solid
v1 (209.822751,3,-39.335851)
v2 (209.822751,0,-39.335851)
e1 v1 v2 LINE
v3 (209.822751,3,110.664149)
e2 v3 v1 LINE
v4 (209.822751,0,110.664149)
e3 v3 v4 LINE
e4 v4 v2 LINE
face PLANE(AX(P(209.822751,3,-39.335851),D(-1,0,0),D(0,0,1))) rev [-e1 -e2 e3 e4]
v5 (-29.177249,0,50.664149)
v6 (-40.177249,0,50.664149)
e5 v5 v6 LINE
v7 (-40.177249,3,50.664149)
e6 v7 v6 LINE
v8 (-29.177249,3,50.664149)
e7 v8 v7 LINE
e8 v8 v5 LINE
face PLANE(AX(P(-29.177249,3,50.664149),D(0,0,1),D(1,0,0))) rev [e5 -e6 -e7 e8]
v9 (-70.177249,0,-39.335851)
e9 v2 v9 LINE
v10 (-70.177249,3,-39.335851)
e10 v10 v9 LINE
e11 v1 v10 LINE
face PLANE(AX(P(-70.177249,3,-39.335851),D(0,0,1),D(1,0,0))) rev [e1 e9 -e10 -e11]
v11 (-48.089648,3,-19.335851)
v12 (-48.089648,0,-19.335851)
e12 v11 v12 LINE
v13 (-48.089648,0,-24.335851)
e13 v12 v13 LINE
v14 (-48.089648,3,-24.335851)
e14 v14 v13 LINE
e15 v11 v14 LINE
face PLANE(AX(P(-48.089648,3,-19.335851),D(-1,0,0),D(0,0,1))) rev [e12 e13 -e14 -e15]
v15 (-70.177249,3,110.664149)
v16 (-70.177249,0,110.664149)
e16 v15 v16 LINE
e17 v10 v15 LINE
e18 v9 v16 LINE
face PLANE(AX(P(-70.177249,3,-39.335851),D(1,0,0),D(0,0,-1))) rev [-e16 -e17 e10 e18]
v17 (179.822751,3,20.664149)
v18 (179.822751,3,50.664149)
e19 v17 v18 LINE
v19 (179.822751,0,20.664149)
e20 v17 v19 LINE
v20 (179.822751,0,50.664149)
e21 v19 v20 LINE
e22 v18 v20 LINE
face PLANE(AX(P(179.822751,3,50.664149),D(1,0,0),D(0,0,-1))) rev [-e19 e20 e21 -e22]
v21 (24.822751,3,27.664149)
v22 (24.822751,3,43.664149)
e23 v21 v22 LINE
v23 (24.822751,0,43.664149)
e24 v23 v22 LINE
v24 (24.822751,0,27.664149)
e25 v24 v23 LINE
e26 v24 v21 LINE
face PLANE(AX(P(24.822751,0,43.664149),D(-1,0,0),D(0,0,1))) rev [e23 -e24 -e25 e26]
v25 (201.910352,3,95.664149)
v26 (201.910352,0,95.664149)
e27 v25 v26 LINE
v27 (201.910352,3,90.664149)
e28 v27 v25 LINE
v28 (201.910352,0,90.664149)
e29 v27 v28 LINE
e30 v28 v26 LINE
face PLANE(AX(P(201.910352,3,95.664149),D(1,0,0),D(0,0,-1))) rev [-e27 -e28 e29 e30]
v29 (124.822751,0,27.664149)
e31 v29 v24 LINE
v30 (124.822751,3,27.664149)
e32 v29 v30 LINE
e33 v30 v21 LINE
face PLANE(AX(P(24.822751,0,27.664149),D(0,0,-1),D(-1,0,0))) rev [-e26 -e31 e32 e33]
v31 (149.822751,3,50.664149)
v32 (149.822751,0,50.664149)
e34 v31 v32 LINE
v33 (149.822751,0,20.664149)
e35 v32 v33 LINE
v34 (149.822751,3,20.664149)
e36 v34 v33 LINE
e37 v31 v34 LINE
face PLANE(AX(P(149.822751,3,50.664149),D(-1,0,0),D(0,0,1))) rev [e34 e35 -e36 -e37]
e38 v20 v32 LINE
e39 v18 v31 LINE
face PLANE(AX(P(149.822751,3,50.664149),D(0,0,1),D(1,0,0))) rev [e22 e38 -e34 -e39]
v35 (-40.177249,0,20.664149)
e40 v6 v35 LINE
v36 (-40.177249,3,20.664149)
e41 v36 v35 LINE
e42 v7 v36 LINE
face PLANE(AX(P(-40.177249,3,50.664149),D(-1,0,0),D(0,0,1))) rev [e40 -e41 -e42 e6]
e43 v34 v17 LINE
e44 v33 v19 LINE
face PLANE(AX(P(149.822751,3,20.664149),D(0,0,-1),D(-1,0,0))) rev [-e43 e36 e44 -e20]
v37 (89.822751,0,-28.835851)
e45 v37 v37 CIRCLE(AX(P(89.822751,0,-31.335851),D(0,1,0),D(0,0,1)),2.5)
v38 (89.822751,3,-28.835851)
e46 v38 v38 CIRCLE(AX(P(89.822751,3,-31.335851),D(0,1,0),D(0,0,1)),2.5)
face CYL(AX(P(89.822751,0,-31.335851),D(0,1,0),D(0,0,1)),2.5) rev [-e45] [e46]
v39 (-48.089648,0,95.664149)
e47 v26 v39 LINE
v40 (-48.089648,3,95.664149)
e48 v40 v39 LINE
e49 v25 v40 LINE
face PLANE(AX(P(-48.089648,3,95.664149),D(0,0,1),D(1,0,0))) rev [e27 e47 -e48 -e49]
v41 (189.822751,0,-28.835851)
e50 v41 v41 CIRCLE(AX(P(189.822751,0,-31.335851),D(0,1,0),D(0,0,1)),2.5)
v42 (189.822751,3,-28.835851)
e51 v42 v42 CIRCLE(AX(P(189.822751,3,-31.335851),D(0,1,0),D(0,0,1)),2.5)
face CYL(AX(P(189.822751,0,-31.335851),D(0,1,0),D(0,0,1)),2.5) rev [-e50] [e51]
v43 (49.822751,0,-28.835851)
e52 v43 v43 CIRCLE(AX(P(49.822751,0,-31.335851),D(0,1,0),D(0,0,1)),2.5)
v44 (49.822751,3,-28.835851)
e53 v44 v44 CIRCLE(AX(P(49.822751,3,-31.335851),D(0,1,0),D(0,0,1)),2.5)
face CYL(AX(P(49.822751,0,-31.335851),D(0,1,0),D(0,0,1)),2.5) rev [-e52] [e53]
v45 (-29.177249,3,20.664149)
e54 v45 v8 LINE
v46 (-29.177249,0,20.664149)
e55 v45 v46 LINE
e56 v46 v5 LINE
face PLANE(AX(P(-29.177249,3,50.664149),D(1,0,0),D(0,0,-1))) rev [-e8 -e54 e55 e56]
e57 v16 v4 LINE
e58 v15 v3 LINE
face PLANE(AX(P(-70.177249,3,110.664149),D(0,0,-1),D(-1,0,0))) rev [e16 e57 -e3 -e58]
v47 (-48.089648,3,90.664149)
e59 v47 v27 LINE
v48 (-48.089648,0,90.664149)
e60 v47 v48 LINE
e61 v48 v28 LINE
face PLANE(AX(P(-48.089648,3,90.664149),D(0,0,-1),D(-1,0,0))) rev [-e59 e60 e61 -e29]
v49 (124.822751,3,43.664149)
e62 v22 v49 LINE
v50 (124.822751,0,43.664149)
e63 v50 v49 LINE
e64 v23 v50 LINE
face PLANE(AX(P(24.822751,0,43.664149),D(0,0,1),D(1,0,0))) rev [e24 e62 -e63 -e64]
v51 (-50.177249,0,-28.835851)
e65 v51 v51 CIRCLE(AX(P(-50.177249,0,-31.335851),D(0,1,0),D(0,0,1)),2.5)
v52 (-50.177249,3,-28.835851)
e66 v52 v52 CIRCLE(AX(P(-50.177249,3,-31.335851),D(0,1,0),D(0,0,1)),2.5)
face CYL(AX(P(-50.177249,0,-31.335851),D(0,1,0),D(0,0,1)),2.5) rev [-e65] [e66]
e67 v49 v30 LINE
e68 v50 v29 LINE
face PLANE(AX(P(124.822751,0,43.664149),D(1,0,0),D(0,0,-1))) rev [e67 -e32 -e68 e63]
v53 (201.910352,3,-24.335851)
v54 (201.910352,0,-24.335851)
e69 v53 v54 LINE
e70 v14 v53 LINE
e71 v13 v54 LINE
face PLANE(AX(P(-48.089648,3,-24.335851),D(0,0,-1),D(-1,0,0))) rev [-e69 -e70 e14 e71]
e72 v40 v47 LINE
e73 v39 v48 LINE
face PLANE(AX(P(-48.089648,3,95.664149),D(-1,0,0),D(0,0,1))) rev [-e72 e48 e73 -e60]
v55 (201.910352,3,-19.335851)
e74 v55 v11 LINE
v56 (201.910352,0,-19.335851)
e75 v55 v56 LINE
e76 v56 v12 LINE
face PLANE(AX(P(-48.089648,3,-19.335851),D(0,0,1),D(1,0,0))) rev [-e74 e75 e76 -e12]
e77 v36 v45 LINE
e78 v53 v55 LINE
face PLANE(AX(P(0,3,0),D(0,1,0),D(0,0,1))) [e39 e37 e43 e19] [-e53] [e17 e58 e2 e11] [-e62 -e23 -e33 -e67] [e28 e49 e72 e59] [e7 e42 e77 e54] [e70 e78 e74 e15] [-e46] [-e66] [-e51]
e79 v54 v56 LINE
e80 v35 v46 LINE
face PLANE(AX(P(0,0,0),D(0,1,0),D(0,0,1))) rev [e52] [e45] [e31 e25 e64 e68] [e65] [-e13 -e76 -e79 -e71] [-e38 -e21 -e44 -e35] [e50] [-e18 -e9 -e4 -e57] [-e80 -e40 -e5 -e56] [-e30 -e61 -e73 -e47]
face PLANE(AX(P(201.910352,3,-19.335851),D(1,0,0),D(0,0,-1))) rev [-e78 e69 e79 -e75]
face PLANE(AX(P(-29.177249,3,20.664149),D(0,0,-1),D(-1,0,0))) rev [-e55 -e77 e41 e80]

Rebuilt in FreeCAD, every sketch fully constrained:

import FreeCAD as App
import Part
import Sketcher

V = App.Vector
Q = App.Units.Quantity


def add_polygon(sketch, points):
    """Adds a closed chain of lines whose ends are joined by coincident constraints."""
    first, n = sketch.GeometryCount, len(points)
    for a, b in zip(points, points[1:] + points[:1]):
        sketch.addGeometry(Part.LineSegment(App.Vector(*a, 0), App.Vector(*b, 0)), False)
    for i in range(n):
        sketch.addConstraint(Sketcher.Constraint("Coincident", first + i, 2, first + (i + 1) % n, 1))

doc = App.newDocument("Part")
body = doc.addObject("PartDesign::Body", "Body")

# Sketch on XZ plane
sketch1 = body.newObject("Sketcher::SketchObject", "Sketch")
sketch1.AttachmentSupport = (doc.getObject("XZ_Plane"), [""])
sketch1.MapMode = "FlatFace"
add_polygon(sketch1, [(-70.177249, -39.335851), (-70.177249, 110.664149), (209.822751, 110.664149), (209.822751, -39.335851)])  # lines 0-3
sketch1.addConstraint([
    Sketcher.Constraint("Vertical", 0),
    Sketcher.Constraint("Horizontal", 1),
    Sketcher.Constraint("Vertical", 2),
    Sketcher.Constraint("Horizontal", 3),
    Sketcher.Constraint("DistanceX", 1, 1, 1, 2, Q("280 mm")),
    Sketcher.Constraint("DistanceY", 0, 1, 0, 2, Q("150 mm")),
    Sketcher.Constraint("DistanceX", 0, 2, -1, 1, Q("70.177249 mm")),
    Sketcher.Constraint("DistanceY", -1, 1, 0, 2, Q("110.664149 mm")),
])
pad1 = body.newObject("PartDesign::Pad", "Pad")
pad1.Profile = sketch1
pad1.Length = 3
pad1.Reversed = True

# Sketch on XZ plane
sketch2 = body.newObject("Sketcher::SketchObject", "Sketch001")
sketch2.AttachmentSupport = (doc.getObject("XZ_Plane"), [""])
sketch2.MapMode = "FlatFace"
sketch2.AttachmentOffset = App.Placement(V(0, 0, -3), App.Rotation())
add_polygon(sketch2, [(24.822751, 27.664149), (24.822751, 43.664149), (124.822751, 43.664149), (124.822751, 27.664149)])  # lines 0-3
sketch2.addConstraint([
    Sketcher.Constraint("Vertical", 0),
    Sketcher.Constraint("Horizontal", 1),
    Sketcher.Constraint("Vertical", 2),
    Sketcher.Constraint("Horizontal", 3),
    Sketcher.Constraint("DistanceX", 1, 1, 1, 2, Q("100 mm")),
    Sketcher.Constraint("DistanceY", 0, 1, 0, 2, Q("16 mm")),
    Sketcher.Constraint("DistanceX", -1, 1, 0, 2, Q("24.822751 mm")),
    Sketcher.Constraint("DistanceY", -1, 1, 0, 2, Q("43.664149 mm")),
])
pocket1 = body.newObject("PartDesign::Pocket", "Pocket")
pocket1.Profile = sketch2
pocket1.Length = 3
pocket1.Reversed = True

# Sketch on XZ plane
sketch3 = body.newObject("Sketcher::SketchObject", "Sketch002")
sketch3.AttachmentSupport = (doc.getObject("XZ_Plane"), [""])
sketch3.MapMode = "FlatFace"
add_polygon(sketch3, [(-48.089648, 95.664149), (-48.089648, 90.664149), (201.910352, 90.664149), (201.910352, 95.664149)])  # lines 0-3
add_polygon(sketch3, [(-48.089648, -19.335851), (-48.089648, -24.335851), (201.910352, -24.335851), (201.910352, -19.335851)])  # lines 4-7
sketch3.addConstraint([
    Sketcher.Constraint("Vertical", 0),
    Sketcher.Constraint("Horizontal", 1),
    Sketcher.Constraint("Vertical", 2),
    Sketcher.Constraint("Horizontal", 3),
    Sketcher.Constraint("Vertical", 4),
    Sketcher.Constraint("Horizontal", 5),
    Sketcher.Constraint("Vertical", 6),
    Sketcher.Constraint("Horizontal", 7),
    Sketcher.Constraint("Vertical", 3, 2, 4, 2),
    Sketcher.Constraint("Vertical", 2, 2, 5, 2),
    Sketcher.Constraint("Equal", 2, 4),
    Sketcher.Constraint("DistanceX", 1, 1, 1, 2, Q("250 mm")),
    Sketcher.Constraint("DistanceY", 0, 2, 0, 1, Q("5 mm")),
    Sketcher.Constraint("DistanceY", 4, 2, 0, 2, Q("115 mm")),
    Sketcher.Constraint("DistanceY", -1, 1, 0, 2, Q("90.664149 mm")),
    Sketcher.Constraint("DistanceX", 0, 2, -1, 1, Q("48.089648 mm")),
])
pocket2 = body.newObject("PartDesign::Pocket", "Pocket001")
pocket2.Profile = sketch3
pocket2.Length = 3

# Sketch on XZ plane
sketch4 = body.newObject("Sketcher::SketchObject", "Sketch003")
sketch4.AttachmentSupport = (doc.getObject("XZ_Plane"), [""])
sketch4.MapMode = "FlatFace"
sketch4.AttachmentOffset = App.Placement(V(0, 0, -3), App.Rotation())
sketch4.addGeometry([
    Part.Circle(V(-50.177249, -31.335851, 0), V(0, 0, 1), 2.5),
    Part.Circle(V(49.822751, -31.335851, 0), V(0, 0, 1), 2.5),
    Part.Circle(V(189.822751, -31.335851, 0), V(0, 0, 1), 2.5),
    Part.Circle(V(89.822751, -31.335851, 0), V(0, 0, 1), 2.5),
], False)
sketch4.addConstraint([
    Sketcher.Constraint("Equal", 0, 1),
    Sketcher.Constraint("Equal", 1, 2),
    Sketcher.Constraint("Equal", 2, 3),
    Sketcher.Constraint("Horizontal", 0, 3, 1, 3),
    Sketcher.Constraint("Horizontal", 1, 3, 2, 3),
    Sketcher.Constraint("Horizontal", 2, 3, 3, 3),
    Sketcher.Constraint("Diameter", 0, Q("5 mm")),
    Sketcher.Constraint("DistanceX", 0, 3, 1, 3, Q("100 mm")),
    Sketcher.Constraint("DistanceX", 1, 3, 2, 3, Q("140 mm")),
    Sketcher.Constraint("DistanceX", 1, 3, 3, 3, Q("40 mm")),
    Sketcher.Constraint("DistanceX", 0, 3, -1, 1, Q("50.177249 mm")),
    Sketcher.Constraint("DistanceY", 0, 3, -1, 1, Q("31.335851 mm")),
])
pocket3 = body.newObject("PartDesign::Pocket", "Pocket002")
pocket3.Profile = sketch4
pocket3.Length = 3
pocket3.Reversed = True

# Sketch on XZ plane
sketch5 = body.newObject("Sketcher::SketchObject", "Sketch004")
sketch5.AttachmentSupport = (doc.getObject("XZ_Plane"), [""])
sketch5.MapMode = "FlatFace"
add_polygon(sketch5, [(149.822751, 50.664149), (149.822751, 20.664149), (179.822751, 20.664149), (179.822751, 50.664149)])  # lines 0-3
add_polygon(sketch5, [(-40.177249, 50.664149), (-40.177249, 20.664149), (-29.177249, 20.664149), (-29.177249, 50.664149)])  # lines 4-7
sketch5.addConstraint([
    Sketcher.Constraint("Vertical", 0),
    Sketcher.Constraint("Horizontal", 1),
    Sketcher.Constraint("Vertical", 2),
    Sketcher.Constraint("Horizontal", 3),
    Sketcher.Constraint("Vertical", 4),
    Sketcher.Constraint("Horizontal", 5),
    Sketcher.Constraint("Vertical", 6),
    Sketcher.Constraint("Horizontal", 7),
    Sketcher.Constraint("Horizontal", 1, 2, 4, 2),
    Sketcher.Constraint("Horizontal", 3, 2, 6, 2),
    Sketcher.Constraint("Equal", 3, 0),
    Sketcher.Constraint("DistanceX", 1, 1, 1, 2, Q("30 mm")),
    Sketcher.Constraint("DistanceX", 5, 1, 5, 2, Q("11 mm")),
    Sketcher.Constraint("DistanceX", 4, 2, 0, 2, Q("190 mm")),
    Sketcher.Constraint("DistanceX", -1, 1, 0, 2, Q("149.822751 mm")),
    Sketcher.Constraint("DistanceY", -1, 1, 0, 2, Q("20.664149 mm")),
])
pocket4 = body.newObject("PartDesign::Pocket", "Pocket003")
pocket4.Profile = sketch5
pocket4.Length = 3

doc.recompute()
